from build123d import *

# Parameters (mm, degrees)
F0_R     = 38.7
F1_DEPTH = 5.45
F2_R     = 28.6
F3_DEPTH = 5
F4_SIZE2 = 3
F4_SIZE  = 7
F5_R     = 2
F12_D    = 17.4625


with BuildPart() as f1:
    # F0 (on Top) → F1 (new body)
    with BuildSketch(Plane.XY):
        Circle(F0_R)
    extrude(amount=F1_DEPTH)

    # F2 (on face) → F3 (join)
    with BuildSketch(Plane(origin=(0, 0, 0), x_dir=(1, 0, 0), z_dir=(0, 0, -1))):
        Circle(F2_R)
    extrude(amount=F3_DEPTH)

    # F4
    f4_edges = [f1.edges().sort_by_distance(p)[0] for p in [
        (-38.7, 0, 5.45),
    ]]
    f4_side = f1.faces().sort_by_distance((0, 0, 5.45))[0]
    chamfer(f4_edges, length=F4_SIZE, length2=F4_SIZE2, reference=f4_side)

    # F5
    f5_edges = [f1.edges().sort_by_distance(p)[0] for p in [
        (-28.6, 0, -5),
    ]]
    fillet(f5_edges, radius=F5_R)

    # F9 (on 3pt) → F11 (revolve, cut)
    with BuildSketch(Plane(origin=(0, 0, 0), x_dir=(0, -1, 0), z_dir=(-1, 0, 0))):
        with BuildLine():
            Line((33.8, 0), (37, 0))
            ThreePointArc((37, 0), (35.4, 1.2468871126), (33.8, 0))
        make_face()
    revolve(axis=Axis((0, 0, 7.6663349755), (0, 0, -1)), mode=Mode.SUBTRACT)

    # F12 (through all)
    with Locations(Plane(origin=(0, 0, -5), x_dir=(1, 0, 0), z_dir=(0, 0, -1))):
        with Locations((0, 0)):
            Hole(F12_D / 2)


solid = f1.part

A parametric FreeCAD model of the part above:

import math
import FreeCAD as App
import Part
import Sketcher

V = App.Vector
Q = App.Units.Quantity


def edges_at(feature, points):
    """Names of the edges that pass closest to the given points."""
    edges = feature.Shape.Edges
    near = lambda p: min(range(len(edges)), key=lambda i: edges[i].distToShape(Part.Vertex(*p))[0])
    return sorted({f"Edge{near(p) + 1}" for p in points})

doc = App.newDocument("Part")
body = doc.addObject("PartDesign::Body", "Body")

# Sketch on XY plane
sketch1 = body.newObject("Sketcher::SketchObject", "Sketch")
sketch1.AttachmentSupport = (doc.getObject("XY_Plane"), [""])
sketch1.MapMode = "FlatFace"
sketch1.addGeometry(Part.Circle(V(0, 0, 0), V(0, 0, 1), 39), False)
sketch1.addConstraint(Sketcher.Constraint("Coincident", 0, 3, -1, 1))
sketch1.addConstraint(Sketcher.Constraint("Diameter", 0, Q("77.4 mm")))
pad1 = body.newObject("PartDesign::Pad", "Pad")
pad1.Profile = sketch1
pad1.Length = 5.45

# Sketch on XY plane
sketch2 = body.newObject("Sketcher::SketchObject", "Sketch001")
sketch2.AttachmentSupport = (doc.getObject("XY_Plane"), [""])
sketch2.MapMode = "FlatFace"
sketch2.addGeometry(Part.Circle(V(0, 0, 0), V(0, 0, 1), 29), False)
sketch2.addConstraint(Sketcher.Constraint("Coincident", 0, 3, -1, 1))
sketch2.addConstraint(Sketcher.Constraint("Diameter", 0, Q("57.2 mm")))
pad2 = body.newObject("PartDesign::Pad", "Pad001")
pad2.Profile = sketch2
pad2.Length = 5
pad2.Reversed = True
doc.recompute()

chamfer = body.newObject("PartDesign::Chamfer", "Chamfer")
chamfer.Base = (pad2, edges_at(pad2, [(-38.7, 0, 5.45)]))
chamfer.ChamferType = "Two distances"
chamfer.Size = 7
chamfer.Size2 = 3
chamfer.FlipDirection = True
doc.recompute()

fillet = body.newObject("PartDesign::Fillet", "Fillet")
fillet.Base = (chamfer, edges_at(chamfer, [(-28.6, 0, -5)]))
fillet.Radius = 2

# Sketch on YZ plane
sketch3 = body.newObject("Sketcher::SketchObject", "Sketch002")
sketch3.AttachmentSupport = (doc.getObject("YZ_Plane"), [""])
sketch3.MapMode = "FlatFace"
sketch3.addGeometry(Part.LineSegment(V(-33.8, 0, 0), V(-37, 0, 0)), False)
sketch3.addGeometry(Part.ArcOfCircle(Part.Circle(V(-35.4, -0.4, 0), V(0, 0, 1), 1.6), math.radians(14), math.radians(166)), False)
sketch3.addConstraint(Sketcher.Constraint("Coincident", 0, 1, 1, 1))
sketch3.addConstraint(Sketcher.Constraint("Coincident", 1, 2, 0, 2))
sketch3.addConstraint(Sketcher.Constraint("Horizontal", 0))
sketch3.addConstraint(Sketcher.Constraint("PointOnObject", 0, 1, -1))
sketch3.addConstraint(Sketcher.Constraint("Radius", 1, Q("1.65 mm")))
sketch3.addConstraint(Sketcher.Constraint("DistanceX", 0, 2, 0, 1, Q("3.2 mm")))
sketch3.addConstraint(Sketcher.Constraint("DistanceX", 1, 2, -1, 1, Q("37 mm")))
groove = body.newObject("PartDesign::Groove", "Groove")
groove.Profile = sketch3
groove.ReferenceAxis = (sketch3, ["V_Axis"])
groove.Angle = 360

# Sketch on XY plane
sketch4 = body.newObject("Sketcher::SketchObject", "Sketch003")
sketch4.AttachmentSupport = (doc.getObject("XY_Plane"), [""])
sketch4.MapMode = "FlatFace"
sketch4.AttachmentOffset = App.Placement(V(0, 0, -5), App.Rotation())
sketch4.addGeometry(Part.Circle(V(0, 0, 0), V(0, 0, 1), 9), False)
sketch4.addConstraint(Sketcher.Constraint("Coincident", 0, 3, -1, 1))
sketch4.addConstraint(Sketcher.Constraint("Diameter", 0, Q("17.4625 mm")))
doc.recompute()
hole = body.newObject("PartDesign::Hole", "Hole")
hole.Profile = sketch4
hole.ThreadType = "None"
hole.Diameter = 17.4625
hole.DepthType = "ThroughAll"
hole.Reversed = True

doc.recompute()
